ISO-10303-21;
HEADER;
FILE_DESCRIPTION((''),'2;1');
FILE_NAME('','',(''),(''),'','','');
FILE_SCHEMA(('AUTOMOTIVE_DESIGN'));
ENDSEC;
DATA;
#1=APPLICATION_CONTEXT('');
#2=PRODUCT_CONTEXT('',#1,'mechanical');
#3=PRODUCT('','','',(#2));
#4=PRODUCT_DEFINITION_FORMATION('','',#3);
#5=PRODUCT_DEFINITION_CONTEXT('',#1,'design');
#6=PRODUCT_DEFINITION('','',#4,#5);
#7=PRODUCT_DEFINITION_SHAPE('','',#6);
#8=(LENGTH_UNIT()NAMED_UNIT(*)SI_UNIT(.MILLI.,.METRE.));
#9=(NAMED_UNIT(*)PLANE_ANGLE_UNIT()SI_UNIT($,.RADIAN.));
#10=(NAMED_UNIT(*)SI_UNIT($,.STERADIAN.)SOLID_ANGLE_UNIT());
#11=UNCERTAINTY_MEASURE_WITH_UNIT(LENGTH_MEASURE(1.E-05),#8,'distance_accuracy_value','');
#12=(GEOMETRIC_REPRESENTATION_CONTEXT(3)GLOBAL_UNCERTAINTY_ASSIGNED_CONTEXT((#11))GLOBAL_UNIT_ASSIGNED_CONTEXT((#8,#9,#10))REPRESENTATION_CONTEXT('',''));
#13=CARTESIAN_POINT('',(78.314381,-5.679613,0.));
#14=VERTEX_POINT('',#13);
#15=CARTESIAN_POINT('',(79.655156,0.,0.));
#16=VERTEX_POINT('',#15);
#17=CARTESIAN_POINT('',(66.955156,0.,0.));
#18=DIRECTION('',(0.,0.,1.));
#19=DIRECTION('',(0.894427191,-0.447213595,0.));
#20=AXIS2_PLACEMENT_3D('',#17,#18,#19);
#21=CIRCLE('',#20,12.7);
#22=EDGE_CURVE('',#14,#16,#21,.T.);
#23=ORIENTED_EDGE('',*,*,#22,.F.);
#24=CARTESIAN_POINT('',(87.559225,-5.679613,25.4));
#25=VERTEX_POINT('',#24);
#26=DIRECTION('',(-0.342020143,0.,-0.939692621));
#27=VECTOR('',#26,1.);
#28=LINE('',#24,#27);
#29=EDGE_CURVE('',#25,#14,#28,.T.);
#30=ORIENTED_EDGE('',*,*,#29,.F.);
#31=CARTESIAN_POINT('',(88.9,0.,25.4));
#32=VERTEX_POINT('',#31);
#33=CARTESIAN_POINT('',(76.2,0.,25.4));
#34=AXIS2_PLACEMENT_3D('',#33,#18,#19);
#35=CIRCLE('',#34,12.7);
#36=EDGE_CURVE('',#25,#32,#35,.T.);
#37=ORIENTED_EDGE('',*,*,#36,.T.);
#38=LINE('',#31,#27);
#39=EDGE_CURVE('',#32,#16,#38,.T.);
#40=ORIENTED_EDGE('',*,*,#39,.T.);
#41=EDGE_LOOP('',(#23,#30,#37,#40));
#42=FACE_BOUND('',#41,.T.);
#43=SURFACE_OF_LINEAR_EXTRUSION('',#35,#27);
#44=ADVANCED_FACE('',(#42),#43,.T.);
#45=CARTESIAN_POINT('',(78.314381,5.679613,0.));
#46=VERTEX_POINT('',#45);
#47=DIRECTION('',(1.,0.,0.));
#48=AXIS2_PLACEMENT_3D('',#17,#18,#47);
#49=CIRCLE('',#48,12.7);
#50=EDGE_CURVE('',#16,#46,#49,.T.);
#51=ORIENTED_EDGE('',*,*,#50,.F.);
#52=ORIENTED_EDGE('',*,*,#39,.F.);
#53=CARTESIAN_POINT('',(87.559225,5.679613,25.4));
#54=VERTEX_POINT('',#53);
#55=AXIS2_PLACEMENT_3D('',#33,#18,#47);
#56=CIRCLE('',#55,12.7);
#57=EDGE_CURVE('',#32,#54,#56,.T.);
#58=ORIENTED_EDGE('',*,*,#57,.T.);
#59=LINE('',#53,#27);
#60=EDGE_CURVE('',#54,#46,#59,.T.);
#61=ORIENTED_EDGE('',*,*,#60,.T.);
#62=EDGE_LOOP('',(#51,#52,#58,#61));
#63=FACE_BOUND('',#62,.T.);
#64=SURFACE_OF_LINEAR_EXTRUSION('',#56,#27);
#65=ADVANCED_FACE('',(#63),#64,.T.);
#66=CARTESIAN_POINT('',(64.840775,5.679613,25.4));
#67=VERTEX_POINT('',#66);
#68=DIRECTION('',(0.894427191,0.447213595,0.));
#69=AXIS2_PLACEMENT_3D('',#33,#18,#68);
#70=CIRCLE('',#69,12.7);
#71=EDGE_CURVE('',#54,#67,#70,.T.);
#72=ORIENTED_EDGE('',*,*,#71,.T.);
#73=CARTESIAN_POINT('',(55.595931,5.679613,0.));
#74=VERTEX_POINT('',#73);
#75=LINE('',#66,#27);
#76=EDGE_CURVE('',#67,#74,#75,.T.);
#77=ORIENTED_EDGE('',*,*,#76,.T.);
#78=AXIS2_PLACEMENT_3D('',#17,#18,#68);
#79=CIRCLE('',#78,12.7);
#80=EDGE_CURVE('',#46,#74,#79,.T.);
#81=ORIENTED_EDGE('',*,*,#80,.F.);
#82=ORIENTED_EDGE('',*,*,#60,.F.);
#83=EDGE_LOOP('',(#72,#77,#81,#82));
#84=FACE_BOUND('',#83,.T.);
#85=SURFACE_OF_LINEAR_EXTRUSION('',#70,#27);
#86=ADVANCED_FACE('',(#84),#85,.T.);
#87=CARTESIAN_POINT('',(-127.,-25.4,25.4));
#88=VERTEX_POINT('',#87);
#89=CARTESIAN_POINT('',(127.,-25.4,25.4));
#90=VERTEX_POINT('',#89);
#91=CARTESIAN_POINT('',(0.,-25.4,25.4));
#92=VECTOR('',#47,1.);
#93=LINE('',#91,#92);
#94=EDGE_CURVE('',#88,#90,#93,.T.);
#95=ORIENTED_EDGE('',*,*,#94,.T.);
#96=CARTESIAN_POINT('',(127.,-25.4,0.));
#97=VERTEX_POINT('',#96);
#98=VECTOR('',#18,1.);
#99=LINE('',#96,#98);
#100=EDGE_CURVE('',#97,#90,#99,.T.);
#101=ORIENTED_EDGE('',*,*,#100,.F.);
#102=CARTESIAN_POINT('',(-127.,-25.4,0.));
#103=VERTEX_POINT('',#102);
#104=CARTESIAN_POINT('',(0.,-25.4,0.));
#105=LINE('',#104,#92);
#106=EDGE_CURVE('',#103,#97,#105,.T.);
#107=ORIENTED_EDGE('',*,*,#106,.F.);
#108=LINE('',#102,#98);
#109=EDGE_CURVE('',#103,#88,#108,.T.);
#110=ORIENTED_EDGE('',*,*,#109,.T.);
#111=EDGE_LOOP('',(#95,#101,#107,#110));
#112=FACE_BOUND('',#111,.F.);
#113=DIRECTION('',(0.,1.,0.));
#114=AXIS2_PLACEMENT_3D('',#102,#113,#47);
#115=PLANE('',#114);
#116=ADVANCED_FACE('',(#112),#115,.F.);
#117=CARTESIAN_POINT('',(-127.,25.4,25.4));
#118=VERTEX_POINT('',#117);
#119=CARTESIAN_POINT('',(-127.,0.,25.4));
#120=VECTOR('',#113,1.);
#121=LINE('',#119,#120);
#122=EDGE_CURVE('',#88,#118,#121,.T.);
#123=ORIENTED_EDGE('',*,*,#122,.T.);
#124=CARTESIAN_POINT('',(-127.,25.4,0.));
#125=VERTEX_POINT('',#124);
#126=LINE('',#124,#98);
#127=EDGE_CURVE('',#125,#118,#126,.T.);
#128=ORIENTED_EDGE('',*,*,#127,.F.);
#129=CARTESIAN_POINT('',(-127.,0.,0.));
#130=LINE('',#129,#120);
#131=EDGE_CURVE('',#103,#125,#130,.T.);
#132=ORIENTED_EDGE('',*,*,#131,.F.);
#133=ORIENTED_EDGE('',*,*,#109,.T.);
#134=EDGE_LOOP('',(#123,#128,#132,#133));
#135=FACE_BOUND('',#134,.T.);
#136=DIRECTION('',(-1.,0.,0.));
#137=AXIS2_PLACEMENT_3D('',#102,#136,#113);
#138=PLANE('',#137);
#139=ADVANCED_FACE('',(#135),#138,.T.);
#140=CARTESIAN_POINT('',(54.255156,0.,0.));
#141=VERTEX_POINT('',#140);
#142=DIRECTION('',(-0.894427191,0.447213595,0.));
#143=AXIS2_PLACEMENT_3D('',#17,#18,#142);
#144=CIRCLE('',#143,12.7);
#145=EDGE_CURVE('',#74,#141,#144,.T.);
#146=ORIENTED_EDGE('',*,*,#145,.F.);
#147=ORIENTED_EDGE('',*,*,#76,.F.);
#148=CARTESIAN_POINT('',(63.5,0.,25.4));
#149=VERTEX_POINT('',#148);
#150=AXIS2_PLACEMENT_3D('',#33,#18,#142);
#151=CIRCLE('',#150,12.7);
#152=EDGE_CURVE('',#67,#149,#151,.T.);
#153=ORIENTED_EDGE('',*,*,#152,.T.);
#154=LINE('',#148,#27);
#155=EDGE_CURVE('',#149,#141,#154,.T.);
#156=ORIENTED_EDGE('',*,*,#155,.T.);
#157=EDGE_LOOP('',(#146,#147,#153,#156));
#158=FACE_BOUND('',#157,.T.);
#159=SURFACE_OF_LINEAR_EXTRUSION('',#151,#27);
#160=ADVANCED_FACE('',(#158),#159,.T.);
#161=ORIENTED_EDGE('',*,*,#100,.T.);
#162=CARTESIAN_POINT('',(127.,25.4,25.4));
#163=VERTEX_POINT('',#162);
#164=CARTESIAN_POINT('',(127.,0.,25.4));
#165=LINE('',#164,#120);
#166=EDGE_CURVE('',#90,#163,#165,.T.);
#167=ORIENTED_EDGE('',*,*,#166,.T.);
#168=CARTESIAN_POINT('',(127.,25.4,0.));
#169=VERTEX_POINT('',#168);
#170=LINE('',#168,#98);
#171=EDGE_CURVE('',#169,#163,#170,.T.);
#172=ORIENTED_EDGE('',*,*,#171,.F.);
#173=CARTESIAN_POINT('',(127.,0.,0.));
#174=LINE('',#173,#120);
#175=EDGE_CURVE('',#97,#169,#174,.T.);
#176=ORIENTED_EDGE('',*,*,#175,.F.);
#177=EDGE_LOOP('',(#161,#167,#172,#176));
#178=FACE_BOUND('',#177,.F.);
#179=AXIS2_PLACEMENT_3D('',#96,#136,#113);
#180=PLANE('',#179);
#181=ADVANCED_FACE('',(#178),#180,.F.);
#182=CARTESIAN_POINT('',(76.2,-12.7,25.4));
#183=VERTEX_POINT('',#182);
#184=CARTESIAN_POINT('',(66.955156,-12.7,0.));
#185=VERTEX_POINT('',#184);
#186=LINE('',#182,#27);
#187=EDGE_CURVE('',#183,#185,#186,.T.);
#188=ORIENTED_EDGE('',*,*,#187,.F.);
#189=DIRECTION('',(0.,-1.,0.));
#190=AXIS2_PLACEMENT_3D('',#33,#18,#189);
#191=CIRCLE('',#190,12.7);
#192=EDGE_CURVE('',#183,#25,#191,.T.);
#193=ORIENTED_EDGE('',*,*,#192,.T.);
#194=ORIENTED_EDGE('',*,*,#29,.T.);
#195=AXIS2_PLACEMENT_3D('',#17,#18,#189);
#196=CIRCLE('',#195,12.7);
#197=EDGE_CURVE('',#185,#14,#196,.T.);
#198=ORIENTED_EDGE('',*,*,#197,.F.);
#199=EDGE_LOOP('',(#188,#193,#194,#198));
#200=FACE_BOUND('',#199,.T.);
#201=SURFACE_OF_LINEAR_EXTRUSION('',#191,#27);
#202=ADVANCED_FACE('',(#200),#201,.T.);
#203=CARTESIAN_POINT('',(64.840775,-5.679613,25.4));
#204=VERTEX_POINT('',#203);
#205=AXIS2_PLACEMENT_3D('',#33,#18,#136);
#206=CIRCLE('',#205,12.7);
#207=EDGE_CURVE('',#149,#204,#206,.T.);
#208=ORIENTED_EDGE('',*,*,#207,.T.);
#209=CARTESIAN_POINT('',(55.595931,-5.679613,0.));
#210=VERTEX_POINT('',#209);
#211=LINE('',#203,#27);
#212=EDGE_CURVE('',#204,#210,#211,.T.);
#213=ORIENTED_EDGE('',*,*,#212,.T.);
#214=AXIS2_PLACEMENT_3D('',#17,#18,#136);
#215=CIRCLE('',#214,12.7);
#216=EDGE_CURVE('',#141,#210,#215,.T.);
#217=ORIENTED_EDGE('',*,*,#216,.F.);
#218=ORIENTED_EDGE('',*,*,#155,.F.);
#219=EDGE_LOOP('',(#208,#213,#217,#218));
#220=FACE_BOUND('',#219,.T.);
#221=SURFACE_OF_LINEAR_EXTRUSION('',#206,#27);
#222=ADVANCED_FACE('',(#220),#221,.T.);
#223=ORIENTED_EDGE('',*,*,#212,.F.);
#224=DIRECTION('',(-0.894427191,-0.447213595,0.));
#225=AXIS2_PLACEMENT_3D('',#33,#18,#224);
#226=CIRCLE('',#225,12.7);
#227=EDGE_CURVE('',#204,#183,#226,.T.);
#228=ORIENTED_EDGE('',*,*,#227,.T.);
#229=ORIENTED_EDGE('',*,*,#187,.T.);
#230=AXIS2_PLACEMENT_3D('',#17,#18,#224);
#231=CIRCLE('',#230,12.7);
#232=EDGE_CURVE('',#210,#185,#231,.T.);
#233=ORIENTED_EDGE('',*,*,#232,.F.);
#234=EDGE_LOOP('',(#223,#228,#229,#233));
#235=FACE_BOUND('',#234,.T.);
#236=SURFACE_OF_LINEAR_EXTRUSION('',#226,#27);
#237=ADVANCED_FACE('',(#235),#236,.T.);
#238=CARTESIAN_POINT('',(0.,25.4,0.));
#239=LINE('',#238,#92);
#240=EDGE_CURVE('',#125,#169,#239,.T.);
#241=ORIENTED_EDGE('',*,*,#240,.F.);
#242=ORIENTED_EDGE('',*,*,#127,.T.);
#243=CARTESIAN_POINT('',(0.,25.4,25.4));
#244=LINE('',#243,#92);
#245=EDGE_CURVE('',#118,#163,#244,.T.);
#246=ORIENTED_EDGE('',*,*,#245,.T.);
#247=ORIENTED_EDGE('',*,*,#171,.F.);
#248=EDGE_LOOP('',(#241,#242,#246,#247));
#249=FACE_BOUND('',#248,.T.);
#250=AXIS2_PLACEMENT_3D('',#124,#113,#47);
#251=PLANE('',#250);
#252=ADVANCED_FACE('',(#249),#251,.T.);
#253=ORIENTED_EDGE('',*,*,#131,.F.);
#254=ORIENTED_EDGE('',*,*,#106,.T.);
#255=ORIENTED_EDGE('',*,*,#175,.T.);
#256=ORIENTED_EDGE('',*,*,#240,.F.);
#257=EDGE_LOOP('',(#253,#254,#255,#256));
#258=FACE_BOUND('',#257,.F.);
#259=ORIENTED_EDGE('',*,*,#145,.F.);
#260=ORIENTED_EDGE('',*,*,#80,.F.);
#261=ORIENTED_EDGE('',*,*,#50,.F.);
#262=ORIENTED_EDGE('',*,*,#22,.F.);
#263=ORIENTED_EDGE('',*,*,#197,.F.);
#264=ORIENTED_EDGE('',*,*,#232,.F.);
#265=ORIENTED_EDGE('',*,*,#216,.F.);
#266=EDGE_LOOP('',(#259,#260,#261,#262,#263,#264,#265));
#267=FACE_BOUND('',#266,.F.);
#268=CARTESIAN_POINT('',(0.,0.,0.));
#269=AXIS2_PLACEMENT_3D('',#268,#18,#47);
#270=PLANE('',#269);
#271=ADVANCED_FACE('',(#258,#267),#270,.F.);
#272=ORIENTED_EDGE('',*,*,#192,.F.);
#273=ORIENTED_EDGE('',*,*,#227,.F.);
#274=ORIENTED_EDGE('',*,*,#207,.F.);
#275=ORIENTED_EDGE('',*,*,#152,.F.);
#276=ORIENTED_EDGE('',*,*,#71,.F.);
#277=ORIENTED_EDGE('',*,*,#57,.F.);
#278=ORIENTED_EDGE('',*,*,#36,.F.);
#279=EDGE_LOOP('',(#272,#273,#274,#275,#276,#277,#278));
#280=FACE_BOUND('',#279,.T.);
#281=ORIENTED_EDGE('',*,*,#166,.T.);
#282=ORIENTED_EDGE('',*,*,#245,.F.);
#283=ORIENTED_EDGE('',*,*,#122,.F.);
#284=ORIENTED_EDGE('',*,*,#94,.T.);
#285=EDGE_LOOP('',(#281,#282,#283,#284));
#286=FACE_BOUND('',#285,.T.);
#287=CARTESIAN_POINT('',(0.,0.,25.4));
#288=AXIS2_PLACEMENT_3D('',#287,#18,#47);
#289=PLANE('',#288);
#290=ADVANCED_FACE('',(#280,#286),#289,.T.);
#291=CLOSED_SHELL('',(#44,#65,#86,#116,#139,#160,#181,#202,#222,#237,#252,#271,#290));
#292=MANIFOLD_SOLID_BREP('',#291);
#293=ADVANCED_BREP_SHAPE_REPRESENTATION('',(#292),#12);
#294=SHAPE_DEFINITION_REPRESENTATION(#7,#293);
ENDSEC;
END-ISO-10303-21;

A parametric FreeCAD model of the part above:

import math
import FreeCAD as App
import Part
import Sketcher
Q = App.Units.Quantity


def add_polygon(sketch, points):
    """Adds a closed chain of lines whose ends are joined by coincident constraints."""
    first, n = sketch.GeometryCount, len(points)
    for a, b in zip(points, points[1:] + points[:1]):
        sketch.addGeometry(Part.LineSegment(App.Vector(*a, 0), App.Vector(*b, 0)), False)
    for i in range(n):
        sketch.addConstraint(Sketcher.Constraint("Coincident", first + i, 2, first + (i + 1) % n, 1))

doc = App.newDocument("Part")
body = doc.addObject("PartDesign::Body", "Body")

sketch1 = body.newObject("Sketcher::SketchObject", "Sketch")
sketch1.AttachmentSupport = (doc.getObject("XY_Plane"), [""])
sketch1.MapMode = "FlatFace"
add_polygon(sketch1, [(-127, 25.4), (-127, -25.4), (127, -25.4), (127, 25.4)])
sketch1.addConstraint(Sketcher.Constraint("Vertical", 0))
sketch1.addConstraint(Sketcher.Constraint("Horizontal", 1))
sketch1.addConstraint(Sketcher.Constraint("Vertical", 2))
sketch1.addConstraint(Sketcher.Constraint("Horizontal", 3))
sketch1.addConstraint(Sketcher.Constraint("Symmetric", 0, 2, 2, 2, -1, 1))
sketch1.addConstraint(Sketcher.Constraint("DistanceX", 1, 1, 1, 2, Q("10 in")))
sketch1.addConstraint(Sketcher.Constraint("DistanceY", 0, 2, 0, 1, Q("2 in")))
pad1 = body.newObject("PartDesign::Pad", "Pad")
pad1.Profile = sketch1
pad1.Length = Q("1 in")

sketch2 = body.newObject("Sketcher::SketchObject", "Sketch001")
sketch2.AttachmentSupport = (doc.getObject("XY_Plane"), [""])
sketch2.MapMode = "FlatFace"
sketch2.AttachmentOffset = App.Placement(App.Vector(0, 0, 1 * 25.4), App.Rotation())
sketch2.addGeometry(Part.ArcOfCircle(Part.Circle(App.Vector(76.2, 0, 0), App.Vector(0, 0, 1), 12.7), math.radians(26.565051), math.radians(153.434949)), False)
sketch2.addGeometry(Part.ArcOfCircle(Part.Circle(App.Vector(76.2, 0, 0), App.Vector(0, 0, 1), 12.7), math.radians(153.434949), math.radians(180)), False)
sketch2.addGeometry(Part.ArcOfCircle(Part.Circle(App.Vector(76.2, 0, 0), App.Vector(0, 0, 1), 12.7), math.radians(180), math.radians(206.565051)), False)
sketch2.addGeometry(Part.ArcOfCircle(Part.Circle(App.Vector(76.2, 0, 0), App.Vector(0, 0, 1), 12.7), math.radians(-153.434949), math.radians(-90)), False)
sketch2.addGeometry(Part.ArcOfCircle(Part.Circle(App.Vector(76.2, 0, 0), App.Vector(0, 0, 1), 12.7), math.radians(-90), math.radians(-26.565051)), False)
sketch2.addGeometry(Part.ArcOfCircle(Part.Circle(App.Vector(76.2, 0, 0), App.Vector(0, 0, 1), 12.7), math.radians(-26.565051), math.radians(0)), False)
sketch2.addGeometry(Part.ArcOfCircle(Part.Circle(App.Vector(76.2, 0, 0), App.Vector(0, 0, 1), 12.7), math.radians(0), math.radians(26.565051)), False)
sketch2.addConstraint(Sketcher.Constraint("Tangent", 0, 2, 1, 1))
sketch2.addConstraint(Sketcher.Constraint("Tangent", 1, 2, 2, 1))
sketch2.addConstraint(Sketcher.Constraint("Tangent", 2, 2, 3, 1))
sketch2.addConstraint(Sketcher.Constraint("Tangent", 3, 2, 4, 1))
sketch2.addConstraint(Sketcher.Constraint("Tangent", 4, 2, 5, 1))
sketch2.addConstraint(Sketcher.Constraint("Tangent", 5, 2, 6, 1))
sketch2.addConstraint(Sketcher.Constraint("Tangent", 6, 2, 0, 1))
sketch2.addConstraint(Sketcher.Constraint("Coincident", 2, 3, 0, 3))
sketch2.addConstraint(Sketcher.Constraint("Coincident", 4, 3, 0, 3))
sketch2.addConstraint(Sketcher.Constraint("Symmetric", 0, 2, 2, 2, -1))
sketch2.addConstraint(Sketcher.Constraint("PointOnObject", 1, 2, -1))
sketch2.addConstraint(Sketcher.Constraint("PointOnObject", 5, 2, -1))
sketch2.addConstraint(Sketcher.Constraint("Horizontal", 2, 2, 4, 2))
sketch2.addConstraint(Sketcher.Constraint("Horizontal", 0, 2, 6, 2))
sketch2.addConstraint(Sketcher.Constraint("Vertical", 6, 3, 3, 2))
sketch2.addConstraint(Sketcher.Constraint("Radius", 0, Q("0.5 in")))
sketch2.addConstraint(Sketcher.Constraint("DistanceX", -1, 1, 0, 3, Q("3 in")))
sketch2.addConstraint(Sketcher.Constraint("DistanceX", -1, 1, 0, 2, 64.840775))

sketch3 = body.newObject("Sketcher::SketchObject", "Sketch002")
sketch3.Placement = App.Placement(App.Vector(57.781098, 0, -21.0306), App.Rotation(App.Vector(-0.342020143, 0, -0.939692621), App.Vector(0, 1, 0), App.Vector(0.939692621, 0, -0.342020143), "ZXY"))
sketch3.addGeometry(Part.LineSegment(App.Vector(-49.410412, -25.4, 0), App.Vector(-22.380297, -25.4, 0)), False)
sketch3.addConstraint(Sketcher.Constraint("Horizontal", 0))
sketch3.addConstraint(Sketcher.Constraint("DistanceY", 0, 1, -1, 1, Q("1 in")))
sketch3.addConstraint(Sketcher.Constraint("DistanceX", 0, 1, 0, 2, 27.030115))
sketch3.addConstraint(Sketcher.Constraint("DistanceX", 0, 1, -1, 1, 49.410412))
doc.recompute()

subtractivepipe = body.newObject("PartDesign::SubtractivePipe", "SubtractivePipe")
subtractivepipe.Profile = sketch2
subtractivepipe.Spine = (sketch3, ["Edge1"])

doc.recompute()
